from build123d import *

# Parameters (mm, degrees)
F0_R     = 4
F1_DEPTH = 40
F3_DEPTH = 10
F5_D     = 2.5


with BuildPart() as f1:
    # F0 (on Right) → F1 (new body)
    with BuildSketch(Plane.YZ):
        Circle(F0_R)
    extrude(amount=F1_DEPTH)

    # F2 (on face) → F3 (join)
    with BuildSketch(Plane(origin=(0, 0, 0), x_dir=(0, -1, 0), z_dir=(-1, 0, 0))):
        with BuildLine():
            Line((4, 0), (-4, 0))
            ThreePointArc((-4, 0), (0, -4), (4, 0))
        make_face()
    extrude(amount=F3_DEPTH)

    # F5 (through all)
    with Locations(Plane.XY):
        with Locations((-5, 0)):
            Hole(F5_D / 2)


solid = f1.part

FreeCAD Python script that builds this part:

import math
import FreeCAD as App
import Part
import Sketcher

doc = App.newDocument("Part")
body = doc.addObject("PartDesign::Body", "Body")

# Sketch on YZ plane
sketch1 = body.newObject("Sketcher::SketchObject", "Sketch")
sketch1.AttachmentSupport = (doc.getObject("YZ_Plane"), [""])
sketch1.MapMode = "FlatFace"
sketch1.addGeometry(Part.Circle(App.Vector(0, 0, 0), App.Vector(0, 0, 1), 4), False)
sketch1.addConstraint([
    Sketcher.Constraint("Coincident", 0, 3, -1, 1),
    Sketcher.Constraint("Diameter", 0, 8.0),
])
pad1 = body.newObject("PartDesign::Pad", "Pad")
pad1.Profile = sketch1
pad1.Length = 40

# Sketch on YZ plane
sketch2 = body.newObject("Sketcher::SketchObject", "Sketch001")
sketch2.AttachmentSupport = (doc.getObject("YZ_Plane"), [""])
sketch2.MapMode = "FlatFace"
sketch2.addGeometry([
    Part.LineSegment(App.Vector(-4, 0, 0), App.Vector(4, 0, 0)),
    Part.ArcOfCircle(Part.Circle(App.Vector(0, 0, 0), App.Vector(0, 0, 1), 4), math.radians(180), math.radians(360)),
], False)
sketch2.addConstraint([
    Sketcher.Constraint("Coincident", 0, 1, 1, 1),
    Sketcher.Constraint("Coincident", 1, 2, 0, 2),
    Sketcher.Constraint("Horizontal", 0),
    Sketcher.Constraint("Coincident", 1, 3, -1, 1),
    Sketcher.Constraint("PointOnObject", 0, 1, -1),
    Sketcher.Constraint("Radius", 1, 4.0),
])
pad2 = body.newObject("PartDesign::Pad", "Pad001")
pad2.Profile = sketch2
pad2.Length = 10
pad2.Reversed = True

# Sketch on XY plane
sketch3 = body.newObject("Sketcher::SketchObject", "Sketch002")
sketch3.AttachmentSupport = (doc.getObject("XY_Plane"), [""])
sketch3.MapMode = "FlatFace"
sketch3.addGeometry(Part.Circle(App.Vector(-5, 0, 0), App.Vector(0, 0, 1), 1.25), False)
sketch3.addConstraint([
    Sketcher.Constraint("PointOnObject", 0, 3, -1),
    Sketcher.Constraint("Diameter", 0, 2.5),
    Sketcher.Constraint("DistanceX", 0, 3, -1, 1, 5.0),
])
doc.recompute()
hole = body.newObject("PartDesign::Hole", "Hole")
hole.Profile = sketch3
hole.ThreadType = "None"
hole.Diameter = 2.5
hole.DepthType = "ThroughAll"

doc.recompute()
